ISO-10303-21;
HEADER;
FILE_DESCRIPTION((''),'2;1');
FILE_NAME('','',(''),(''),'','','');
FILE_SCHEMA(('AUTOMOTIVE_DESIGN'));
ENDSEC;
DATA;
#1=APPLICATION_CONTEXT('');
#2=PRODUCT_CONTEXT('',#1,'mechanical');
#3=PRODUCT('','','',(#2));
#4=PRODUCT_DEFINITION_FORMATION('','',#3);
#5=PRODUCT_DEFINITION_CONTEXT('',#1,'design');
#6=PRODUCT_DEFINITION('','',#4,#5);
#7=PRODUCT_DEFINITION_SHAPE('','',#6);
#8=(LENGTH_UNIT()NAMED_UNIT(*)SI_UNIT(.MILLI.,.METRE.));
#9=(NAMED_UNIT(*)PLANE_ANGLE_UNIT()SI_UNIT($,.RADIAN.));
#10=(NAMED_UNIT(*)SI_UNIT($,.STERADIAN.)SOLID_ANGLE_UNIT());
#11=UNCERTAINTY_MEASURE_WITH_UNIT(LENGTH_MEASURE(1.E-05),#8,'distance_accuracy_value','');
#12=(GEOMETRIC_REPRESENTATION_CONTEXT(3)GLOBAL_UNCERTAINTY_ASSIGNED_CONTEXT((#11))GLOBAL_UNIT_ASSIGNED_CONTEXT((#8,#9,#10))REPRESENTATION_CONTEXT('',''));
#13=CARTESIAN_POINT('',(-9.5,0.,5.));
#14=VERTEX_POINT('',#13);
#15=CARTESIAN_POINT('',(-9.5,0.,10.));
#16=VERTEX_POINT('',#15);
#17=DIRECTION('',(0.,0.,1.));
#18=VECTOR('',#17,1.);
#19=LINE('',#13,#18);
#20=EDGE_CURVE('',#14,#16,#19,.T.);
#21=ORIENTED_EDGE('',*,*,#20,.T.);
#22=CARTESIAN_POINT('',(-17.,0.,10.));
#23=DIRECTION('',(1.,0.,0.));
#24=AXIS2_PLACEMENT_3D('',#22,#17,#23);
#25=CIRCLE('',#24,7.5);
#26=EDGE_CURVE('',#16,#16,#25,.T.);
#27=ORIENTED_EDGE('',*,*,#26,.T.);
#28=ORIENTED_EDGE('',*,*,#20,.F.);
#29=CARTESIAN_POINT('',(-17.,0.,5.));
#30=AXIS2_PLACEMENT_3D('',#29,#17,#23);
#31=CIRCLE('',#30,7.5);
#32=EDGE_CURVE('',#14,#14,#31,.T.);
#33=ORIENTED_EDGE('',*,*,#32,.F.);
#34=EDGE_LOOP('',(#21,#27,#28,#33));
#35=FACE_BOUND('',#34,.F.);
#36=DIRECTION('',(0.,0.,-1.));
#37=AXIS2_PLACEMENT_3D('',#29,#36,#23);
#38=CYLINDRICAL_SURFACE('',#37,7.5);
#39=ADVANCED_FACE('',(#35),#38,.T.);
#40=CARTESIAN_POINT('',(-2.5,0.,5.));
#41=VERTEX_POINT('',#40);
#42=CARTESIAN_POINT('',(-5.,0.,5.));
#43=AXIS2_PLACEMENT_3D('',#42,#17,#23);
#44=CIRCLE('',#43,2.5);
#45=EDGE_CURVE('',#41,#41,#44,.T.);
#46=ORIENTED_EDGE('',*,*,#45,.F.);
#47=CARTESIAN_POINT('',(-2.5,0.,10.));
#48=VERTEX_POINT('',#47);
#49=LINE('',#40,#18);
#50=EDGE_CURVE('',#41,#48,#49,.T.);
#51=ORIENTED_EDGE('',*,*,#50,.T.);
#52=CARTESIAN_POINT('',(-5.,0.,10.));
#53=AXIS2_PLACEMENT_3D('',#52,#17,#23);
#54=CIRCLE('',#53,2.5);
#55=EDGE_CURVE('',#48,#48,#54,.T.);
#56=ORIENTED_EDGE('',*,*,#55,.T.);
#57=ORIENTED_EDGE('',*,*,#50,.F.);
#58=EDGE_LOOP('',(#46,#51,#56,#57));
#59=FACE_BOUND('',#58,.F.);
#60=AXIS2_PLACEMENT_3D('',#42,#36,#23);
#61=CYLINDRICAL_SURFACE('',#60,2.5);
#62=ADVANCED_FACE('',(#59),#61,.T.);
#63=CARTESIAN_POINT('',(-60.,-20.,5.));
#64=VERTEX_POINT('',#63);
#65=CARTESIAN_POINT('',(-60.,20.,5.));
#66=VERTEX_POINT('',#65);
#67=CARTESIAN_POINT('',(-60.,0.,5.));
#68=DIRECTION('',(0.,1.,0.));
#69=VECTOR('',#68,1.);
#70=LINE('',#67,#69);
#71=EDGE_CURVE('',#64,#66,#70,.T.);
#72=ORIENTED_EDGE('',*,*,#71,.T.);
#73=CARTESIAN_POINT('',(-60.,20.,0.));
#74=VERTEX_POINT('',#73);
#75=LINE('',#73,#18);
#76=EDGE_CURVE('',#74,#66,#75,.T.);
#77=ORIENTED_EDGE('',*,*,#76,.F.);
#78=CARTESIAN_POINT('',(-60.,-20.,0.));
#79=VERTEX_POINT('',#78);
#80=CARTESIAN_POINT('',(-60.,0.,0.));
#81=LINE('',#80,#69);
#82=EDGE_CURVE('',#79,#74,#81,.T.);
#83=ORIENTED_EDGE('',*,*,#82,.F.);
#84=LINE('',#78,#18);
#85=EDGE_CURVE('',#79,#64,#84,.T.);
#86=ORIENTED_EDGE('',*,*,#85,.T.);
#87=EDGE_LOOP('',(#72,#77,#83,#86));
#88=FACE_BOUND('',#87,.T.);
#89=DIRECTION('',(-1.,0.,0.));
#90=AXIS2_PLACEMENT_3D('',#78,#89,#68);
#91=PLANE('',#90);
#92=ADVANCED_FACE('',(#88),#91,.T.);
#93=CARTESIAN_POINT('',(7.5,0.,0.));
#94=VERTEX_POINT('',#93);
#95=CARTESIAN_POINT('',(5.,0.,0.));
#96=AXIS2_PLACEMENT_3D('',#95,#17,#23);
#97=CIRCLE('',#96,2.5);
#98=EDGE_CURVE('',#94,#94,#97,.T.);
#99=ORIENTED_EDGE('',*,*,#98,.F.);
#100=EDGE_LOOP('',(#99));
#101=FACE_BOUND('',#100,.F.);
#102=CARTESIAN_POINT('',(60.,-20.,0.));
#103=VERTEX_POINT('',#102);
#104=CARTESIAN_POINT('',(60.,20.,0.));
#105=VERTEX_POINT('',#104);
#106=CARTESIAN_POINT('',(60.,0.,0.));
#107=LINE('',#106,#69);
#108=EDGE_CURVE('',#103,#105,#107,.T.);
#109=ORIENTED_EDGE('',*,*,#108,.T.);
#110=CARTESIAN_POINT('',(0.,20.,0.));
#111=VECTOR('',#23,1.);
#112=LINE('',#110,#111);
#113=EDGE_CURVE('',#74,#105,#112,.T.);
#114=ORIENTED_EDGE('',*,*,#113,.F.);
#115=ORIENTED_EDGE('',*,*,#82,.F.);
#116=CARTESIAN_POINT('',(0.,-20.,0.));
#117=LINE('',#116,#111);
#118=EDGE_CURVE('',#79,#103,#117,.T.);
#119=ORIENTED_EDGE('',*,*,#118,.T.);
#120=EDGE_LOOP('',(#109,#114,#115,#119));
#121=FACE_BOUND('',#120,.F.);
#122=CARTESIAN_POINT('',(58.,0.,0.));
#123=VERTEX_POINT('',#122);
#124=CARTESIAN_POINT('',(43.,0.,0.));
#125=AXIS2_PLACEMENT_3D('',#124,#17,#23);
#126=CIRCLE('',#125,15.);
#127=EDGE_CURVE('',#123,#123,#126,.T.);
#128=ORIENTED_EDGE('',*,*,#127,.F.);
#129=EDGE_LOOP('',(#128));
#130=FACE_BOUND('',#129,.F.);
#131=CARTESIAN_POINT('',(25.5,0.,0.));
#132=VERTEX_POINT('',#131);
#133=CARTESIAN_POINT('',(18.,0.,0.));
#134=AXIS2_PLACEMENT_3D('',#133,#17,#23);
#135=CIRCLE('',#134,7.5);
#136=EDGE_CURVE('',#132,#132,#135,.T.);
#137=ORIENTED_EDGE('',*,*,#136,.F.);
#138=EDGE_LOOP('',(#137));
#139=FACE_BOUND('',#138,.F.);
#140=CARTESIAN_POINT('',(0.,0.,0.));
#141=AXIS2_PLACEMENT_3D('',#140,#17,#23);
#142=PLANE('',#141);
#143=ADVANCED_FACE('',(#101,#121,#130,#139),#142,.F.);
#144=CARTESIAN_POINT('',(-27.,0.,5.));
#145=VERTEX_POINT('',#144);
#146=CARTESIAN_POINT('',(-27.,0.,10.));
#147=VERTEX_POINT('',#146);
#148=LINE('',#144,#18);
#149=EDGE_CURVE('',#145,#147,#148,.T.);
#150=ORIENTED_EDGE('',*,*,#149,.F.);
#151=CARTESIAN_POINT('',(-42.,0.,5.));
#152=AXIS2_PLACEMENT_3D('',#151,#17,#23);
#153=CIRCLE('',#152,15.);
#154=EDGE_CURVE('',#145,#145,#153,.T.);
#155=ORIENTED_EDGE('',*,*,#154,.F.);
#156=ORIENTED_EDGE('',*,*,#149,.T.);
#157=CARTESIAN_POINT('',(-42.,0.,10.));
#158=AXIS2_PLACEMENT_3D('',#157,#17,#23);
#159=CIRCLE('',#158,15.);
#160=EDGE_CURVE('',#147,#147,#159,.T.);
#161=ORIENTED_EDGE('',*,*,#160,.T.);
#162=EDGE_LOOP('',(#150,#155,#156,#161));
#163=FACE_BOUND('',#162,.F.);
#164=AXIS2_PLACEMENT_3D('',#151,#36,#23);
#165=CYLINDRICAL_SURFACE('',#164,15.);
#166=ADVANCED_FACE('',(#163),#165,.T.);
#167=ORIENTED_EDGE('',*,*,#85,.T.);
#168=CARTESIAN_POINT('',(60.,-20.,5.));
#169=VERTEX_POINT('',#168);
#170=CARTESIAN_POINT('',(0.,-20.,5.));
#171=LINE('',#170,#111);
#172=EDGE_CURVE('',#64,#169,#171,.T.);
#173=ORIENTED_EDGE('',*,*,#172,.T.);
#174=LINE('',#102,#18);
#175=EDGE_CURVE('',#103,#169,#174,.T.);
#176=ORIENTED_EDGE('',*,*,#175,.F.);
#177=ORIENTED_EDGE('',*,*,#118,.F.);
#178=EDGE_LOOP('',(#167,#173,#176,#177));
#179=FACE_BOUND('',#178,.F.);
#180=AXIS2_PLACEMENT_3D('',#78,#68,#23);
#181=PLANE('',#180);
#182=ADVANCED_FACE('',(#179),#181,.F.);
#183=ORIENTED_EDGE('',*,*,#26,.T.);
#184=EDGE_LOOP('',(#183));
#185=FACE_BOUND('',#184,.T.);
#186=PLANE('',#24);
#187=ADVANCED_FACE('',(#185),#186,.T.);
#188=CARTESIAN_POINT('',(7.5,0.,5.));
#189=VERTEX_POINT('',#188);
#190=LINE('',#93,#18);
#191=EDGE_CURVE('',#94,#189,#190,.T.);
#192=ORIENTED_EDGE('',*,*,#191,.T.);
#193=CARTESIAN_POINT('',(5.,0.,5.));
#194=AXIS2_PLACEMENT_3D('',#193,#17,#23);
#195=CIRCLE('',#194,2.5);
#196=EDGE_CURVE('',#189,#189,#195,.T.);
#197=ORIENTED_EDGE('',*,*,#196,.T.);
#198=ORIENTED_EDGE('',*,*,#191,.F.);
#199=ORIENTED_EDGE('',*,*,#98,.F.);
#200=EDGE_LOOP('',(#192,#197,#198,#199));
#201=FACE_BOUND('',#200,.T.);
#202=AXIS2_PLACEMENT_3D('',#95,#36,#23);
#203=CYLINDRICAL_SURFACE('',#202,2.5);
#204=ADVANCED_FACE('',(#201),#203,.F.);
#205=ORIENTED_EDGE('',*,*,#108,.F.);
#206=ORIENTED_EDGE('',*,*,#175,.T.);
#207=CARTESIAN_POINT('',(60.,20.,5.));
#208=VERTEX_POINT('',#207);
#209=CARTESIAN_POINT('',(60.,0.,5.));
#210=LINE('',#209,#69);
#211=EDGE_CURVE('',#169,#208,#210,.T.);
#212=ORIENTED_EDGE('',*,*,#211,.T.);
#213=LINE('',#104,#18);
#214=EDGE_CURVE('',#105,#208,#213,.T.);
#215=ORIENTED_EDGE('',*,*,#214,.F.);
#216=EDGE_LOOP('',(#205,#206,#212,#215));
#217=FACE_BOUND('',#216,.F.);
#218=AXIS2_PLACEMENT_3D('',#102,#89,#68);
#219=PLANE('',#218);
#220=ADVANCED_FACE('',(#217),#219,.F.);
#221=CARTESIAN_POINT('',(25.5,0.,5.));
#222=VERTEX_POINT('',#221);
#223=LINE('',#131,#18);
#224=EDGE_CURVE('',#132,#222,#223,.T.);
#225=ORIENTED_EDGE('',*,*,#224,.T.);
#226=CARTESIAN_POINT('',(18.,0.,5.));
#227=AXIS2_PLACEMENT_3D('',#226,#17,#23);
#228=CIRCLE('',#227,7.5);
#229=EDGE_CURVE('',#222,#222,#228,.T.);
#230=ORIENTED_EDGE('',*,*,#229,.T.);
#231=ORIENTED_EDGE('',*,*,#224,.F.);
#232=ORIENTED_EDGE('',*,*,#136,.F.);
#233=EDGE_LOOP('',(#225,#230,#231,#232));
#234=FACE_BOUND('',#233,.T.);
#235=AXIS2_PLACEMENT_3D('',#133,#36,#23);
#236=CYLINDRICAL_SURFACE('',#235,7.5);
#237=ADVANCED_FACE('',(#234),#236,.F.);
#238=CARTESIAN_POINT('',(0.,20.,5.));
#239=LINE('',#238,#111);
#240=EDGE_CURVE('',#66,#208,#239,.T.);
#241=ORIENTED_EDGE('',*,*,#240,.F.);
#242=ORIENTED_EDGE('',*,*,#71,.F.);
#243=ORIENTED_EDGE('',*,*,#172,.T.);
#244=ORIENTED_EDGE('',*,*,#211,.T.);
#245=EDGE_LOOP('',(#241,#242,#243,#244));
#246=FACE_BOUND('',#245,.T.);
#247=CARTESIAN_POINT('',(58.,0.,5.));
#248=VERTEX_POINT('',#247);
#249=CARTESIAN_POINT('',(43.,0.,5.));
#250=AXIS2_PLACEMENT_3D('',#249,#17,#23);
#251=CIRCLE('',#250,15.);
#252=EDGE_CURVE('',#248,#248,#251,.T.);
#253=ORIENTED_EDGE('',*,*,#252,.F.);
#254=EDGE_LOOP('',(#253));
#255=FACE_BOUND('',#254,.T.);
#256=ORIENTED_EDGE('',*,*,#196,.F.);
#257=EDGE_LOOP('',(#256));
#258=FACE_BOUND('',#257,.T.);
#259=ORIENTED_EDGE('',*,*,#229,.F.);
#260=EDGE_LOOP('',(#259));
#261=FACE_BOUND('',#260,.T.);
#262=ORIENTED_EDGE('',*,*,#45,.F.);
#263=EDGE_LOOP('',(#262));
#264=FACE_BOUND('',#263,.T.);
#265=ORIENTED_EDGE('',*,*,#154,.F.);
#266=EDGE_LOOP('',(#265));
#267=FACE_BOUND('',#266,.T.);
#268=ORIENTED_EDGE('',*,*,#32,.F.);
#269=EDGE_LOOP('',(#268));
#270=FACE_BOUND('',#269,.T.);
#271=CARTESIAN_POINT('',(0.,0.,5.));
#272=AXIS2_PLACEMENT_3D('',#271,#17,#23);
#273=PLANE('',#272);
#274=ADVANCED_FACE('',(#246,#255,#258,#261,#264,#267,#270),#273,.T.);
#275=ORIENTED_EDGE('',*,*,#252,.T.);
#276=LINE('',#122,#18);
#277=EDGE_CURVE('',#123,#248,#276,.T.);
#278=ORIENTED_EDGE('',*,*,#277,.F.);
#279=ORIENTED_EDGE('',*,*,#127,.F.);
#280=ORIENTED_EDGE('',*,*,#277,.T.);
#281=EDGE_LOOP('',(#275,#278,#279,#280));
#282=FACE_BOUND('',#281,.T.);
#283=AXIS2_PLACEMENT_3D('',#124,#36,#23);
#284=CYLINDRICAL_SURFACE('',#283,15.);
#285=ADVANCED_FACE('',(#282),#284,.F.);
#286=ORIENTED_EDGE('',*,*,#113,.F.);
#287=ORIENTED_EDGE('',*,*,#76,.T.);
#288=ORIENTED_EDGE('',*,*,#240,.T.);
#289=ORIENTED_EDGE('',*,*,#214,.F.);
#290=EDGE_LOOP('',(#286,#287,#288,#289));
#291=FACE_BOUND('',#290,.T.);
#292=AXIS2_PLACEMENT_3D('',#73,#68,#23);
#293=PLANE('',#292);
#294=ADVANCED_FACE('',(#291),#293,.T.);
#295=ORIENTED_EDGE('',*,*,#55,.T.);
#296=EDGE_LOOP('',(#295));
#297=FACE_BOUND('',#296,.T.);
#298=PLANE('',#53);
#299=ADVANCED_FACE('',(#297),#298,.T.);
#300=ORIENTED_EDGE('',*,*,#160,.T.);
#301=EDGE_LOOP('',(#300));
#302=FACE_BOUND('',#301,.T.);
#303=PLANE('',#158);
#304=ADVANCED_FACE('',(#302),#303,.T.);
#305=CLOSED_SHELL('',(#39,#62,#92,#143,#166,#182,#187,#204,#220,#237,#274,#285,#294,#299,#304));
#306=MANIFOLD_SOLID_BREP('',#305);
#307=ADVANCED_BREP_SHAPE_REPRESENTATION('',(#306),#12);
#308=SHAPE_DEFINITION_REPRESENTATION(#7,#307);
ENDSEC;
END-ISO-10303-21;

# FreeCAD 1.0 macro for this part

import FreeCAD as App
import Part
import Sketcher
from FreeCAD import Vector

doc = App.newDocument("Part")
body = doc.addObject("PartDesign::Body", "Body")

# Sketch on XY plane
sketch1 = body.newObject("Sketcher::SketchObject", "Sketch")
sketch1.AttachmentSupport = (doc.getObject("XY_Plane"), [""])
sketch1.MapMode = "FlatFace"
sketch1.addGeometry([
    Part.LineSegment(Vector(-60, 20, 0), Vector(-60, -20, 0)),  # 0
    Part.LineSegment(Vector(-60, -20, 0), Vector(60, -20, 0)),  # 1
    Part.LineSegment(Vector(60, -20, 0), Vector(60, 20, 0)),  # 2
    Part.LineSegment(Vector(60, 20, 0), Vector(-60, 20, 0)),  # 3
    Part.Circle(Vector(5, 0, 0), Vector(0, 0, 1), 2.5),  # 4
    Part.Circle(Vector(18, 0, 0), Vector(0, 0, 1), 7.5),  # 5
    Part.Circle(Vector(43, 0, 0), Vector(0, 0, 1), 15),  # 6
], False)
sketch1.addConstraint([
    Sketcher.Constraint("Coincident", 0, 2, 1, 1),
    Sketcher.Constraint("Coincident", 1, 2, 2, 1),
    Sketcher.Constraint("Coincident", 2, 2, 3, 1),
    Sketcher.Constraint("Coincident", 3, 2, 0, 1),
    Sketcher.Constraint("Vertical", 0),
    Sketcher.Constraint("Horizontal", 1),
    Sketcher.Constraint("Vertical", 2),
    Sketcher.Constraint("Horizontal", 3),
    Sketcher.Constraint("Symmetric", 0, 2, 2, 2, -1, 1),
    Sketcher.Constraint("PointOnObject", 4, 3, -1),
    Sketcher.Constraint("PointOnObject", 5, 3, -1),
    Sketcher.Constraint("PointOnObject", 6, 3, -1),
    Sketcher.Constraint("Diameter", 4, 5.0),
    Sketcher.Constraint("Diameter", 5, 15.0),
    Sketcher.Constraint("Diameter", 6, 30.0),
    Sketcher.Constraint("DistanceX", 1, 1, 1, 2, 120.0),
    Sketcher.Constraint("DistanceY", 0, 2, 0, 1, 40.0),
    Sketcher.Constraint("DistanceX", -1, 1, 4, 3, 5.0),
    Sketcher.Constraint("DistanceX", -1, 1, 5, 3, 18.0),
    Sketcher.Constraint("DistanceX", -1, 1, 6, 3, 43.0),
])
pad1 = body.newObject("PartDesign::Pad", "Pad")
pad1.Profile = sketch1
pad1.Length = 5

# Sketch on XY plane
sketch2 = body.newObject("Sketcher::SketchObject", "Sketch001")
sketch2.AttachmentSupport = (doc.getObject("XY_Plane"), [""])
sketch2.MapMode = "FlatFace"
sketch2.AttachmentOffset = App.Placement(Vector(0, 0, 5), App.Rotation())
sketch2.addGeometry([
    Part.Circle(Vector(-5, 0, 0), Vector(0, 0, 1), 2.5),
    Part.Circle(Vector(-17, 0, 0), Vector(0, 0, 1), 7.5),
    Part.Circle(Vector(-42, 0, 0), Vector(0, 0, 1), 15),
], False)
sketch2.addConstraint([
    Sketcher.Constraint("PointOnObject", 0, 3, -1),
    Sketcher.Constraint("PointOnObject", 1, 3, -1),
    Sketcher.Constraint("PointOnObject", 2, 3, -1),
    Sketcher.Constraint("Diameter", 0, 5.0),
    Sketcher.Constraint("Diameter", 1, 15.0),
    Sketcher.Constraint("Diameter", 2, 30.0),
    Sketcher.Constraint("DistanceX", 0, 3, -1, 1, 5.0),
    Sketcher.Constraint("DistanceX", 1, 3, -1, 1, 17.0),
    Sketcher.Constraint("DistanceX", 2, 3, -1, 1, 42.0),
])
pad2 = body.newObject("PartDesign::Pad", "Pad001")
pad2.Profile = sketch2
pad2.Length = 5

doc.recompute()
